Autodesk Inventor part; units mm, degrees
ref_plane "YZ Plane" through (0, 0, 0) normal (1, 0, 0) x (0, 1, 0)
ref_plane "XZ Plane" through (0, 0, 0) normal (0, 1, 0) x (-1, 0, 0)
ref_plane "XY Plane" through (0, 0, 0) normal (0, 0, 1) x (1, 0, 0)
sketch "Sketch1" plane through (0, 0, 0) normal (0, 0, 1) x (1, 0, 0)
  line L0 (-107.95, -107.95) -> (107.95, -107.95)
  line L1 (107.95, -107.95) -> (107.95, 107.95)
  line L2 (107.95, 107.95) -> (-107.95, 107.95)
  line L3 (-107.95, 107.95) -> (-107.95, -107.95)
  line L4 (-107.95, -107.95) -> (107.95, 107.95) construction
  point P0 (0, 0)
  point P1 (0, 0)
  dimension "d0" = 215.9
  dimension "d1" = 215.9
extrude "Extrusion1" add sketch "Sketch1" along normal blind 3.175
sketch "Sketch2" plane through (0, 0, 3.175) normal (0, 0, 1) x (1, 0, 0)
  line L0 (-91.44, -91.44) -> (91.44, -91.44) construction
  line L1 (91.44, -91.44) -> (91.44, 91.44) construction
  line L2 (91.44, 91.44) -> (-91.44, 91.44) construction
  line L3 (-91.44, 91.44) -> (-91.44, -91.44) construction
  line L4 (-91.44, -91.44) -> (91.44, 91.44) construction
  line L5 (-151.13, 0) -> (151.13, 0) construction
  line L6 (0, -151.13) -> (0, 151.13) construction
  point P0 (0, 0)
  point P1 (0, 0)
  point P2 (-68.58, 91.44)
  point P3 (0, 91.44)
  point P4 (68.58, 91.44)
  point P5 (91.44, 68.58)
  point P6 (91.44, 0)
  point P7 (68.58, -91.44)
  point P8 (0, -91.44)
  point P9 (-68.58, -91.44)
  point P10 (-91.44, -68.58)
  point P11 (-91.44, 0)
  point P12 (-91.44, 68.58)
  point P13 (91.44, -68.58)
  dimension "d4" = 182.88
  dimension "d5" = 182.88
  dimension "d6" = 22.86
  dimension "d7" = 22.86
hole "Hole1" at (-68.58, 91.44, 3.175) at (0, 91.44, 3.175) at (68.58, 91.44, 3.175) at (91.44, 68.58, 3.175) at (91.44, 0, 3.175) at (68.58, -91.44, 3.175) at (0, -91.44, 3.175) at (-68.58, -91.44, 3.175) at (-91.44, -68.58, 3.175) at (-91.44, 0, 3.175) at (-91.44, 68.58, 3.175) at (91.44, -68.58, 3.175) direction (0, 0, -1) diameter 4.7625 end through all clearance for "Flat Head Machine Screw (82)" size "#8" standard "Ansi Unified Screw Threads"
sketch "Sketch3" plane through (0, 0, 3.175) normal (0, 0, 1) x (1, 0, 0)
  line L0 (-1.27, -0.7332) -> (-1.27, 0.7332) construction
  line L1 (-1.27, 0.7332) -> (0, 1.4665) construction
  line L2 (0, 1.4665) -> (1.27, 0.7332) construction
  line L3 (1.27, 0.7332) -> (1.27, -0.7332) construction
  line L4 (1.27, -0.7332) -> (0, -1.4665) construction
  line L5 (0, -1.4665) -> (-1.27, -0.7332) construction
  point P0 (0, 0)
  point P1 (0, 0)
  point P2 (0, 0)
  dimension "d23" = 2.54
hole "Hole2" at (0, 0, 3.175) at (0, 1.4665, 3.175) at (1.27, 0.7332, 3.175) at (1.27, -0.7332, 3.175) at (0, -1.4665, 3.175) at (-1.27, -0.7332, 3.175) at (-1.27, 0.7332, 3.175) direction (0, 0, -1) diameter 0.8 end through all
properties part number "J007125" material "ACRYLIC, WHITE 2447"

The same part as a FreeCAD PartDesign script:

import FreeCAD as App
import Part
import Sketcher
Q = App.Units.Quantity


def add_polygon(sketch, points):
    """Adds a closed chain of lines whose ends are joined by coincident constraints."""
    first, n = sketch.GeometryCount, len(points)
    for a, b in zip(points, points[1:] + points[:1]):
        sketch.addGeometry(Part.LineSegment(App.Vector(*a, 0), App.Vector(*b, 0)), False)
    for i in range(n):
        sketch.addConstraint(Sketcher.Constraint("Coincident", first + i, 2, first + (i + 1) % n, 1))

doc = App.newDocument("Part")
body = doc.addObject("PartDesign::Body", "Body")

sketch1 = body.newObject("Sketcher::SketchObject", "Sketch")
sketch1.AttachmentSupport = (doc.getObject("XY_Plane"), [""])
sketch1.MapMode = "FlatFace"
add_polygon(sketch1, [(-108, 108), (-108, -108), (108, -108), (108, 108)])
sketch1.addConstraint([
    Sketcher.Constraint("Vertical", 0),
    Sketcher.Constraint("Horizontal", 1),
    Sketcher.Constraint("Vertical", 2),
    Sketcher.Constraint("Horizontal", 3),
    Sketcher.Constraint("Symmetric", 0, 2, 2, 2, -1, 1),
    Sketcher.Constraint("Equal", 3, 0),
    Sketcher.Constraint("DistanceX", 1, 1, 1, 2, Q("8.5 in")),
])
pad1 = body.newObject("PartDesign::Pad", "Pad")
pad1.Profile = sketch1
pad1.Length = Q("0.125 in")

sketch2 = body.newObject("Sketcher::SketchObject", "Sketch001")
sketch2.AttachmentSupport = (doc.getObject("XY_Plane"), [""])
sketch2.MapMode = "FlatFace"
sketch2.AttachmentOffset = App.Placement(App.Vector(0, 0, 0.125 * 25.4), App.Rotation())
sketch2.addGeometry([
    Part.Circle(App.Vector(-68.6, 91.4, 0), App.Vector(0, 0, 1), 2.4),
    Part.Circle(App.Vector(0, 91.4, 0), App.Vector(0, 0, 1), 2.4),
    Part.Circle(App.Vector(68.6, 91.4, 0), App.Vector(0, 0, 1), 2.4),
    Part.Circle(App.Vector(91.4, 68.6, 0), App.Vector(0, 0, 1), 2.4),
    Part.Circle(App.Vector(91.4, 0, 0), App.Vector(0, 0, 1), 2.4),
    Part.Circle(App.Vector(68.6, -91.4, 0), App.Vector(0, 0, 1), 2.4),
    Part.Circle(App.Vector(0, -91.4, 0), App.Vector(0, 0, 1), 2.4),
    Part.Circle(App.Vector(-68.6, -91.4, 0), App.Vector(0, 0, 1), 2.4),
    Part.Circle(App.Vector(-91.4, -68.6, 0), App.Vector(0, 0, 1), 2.4),
    Part.Circle(App.Vector(-91.4, 0, 0), App.Vector(0, 0, 1), 2.4),
    Part.Circle(App.Vector(-91.4, 68.6, 0), App.Vector(0, 0, 1), 2.4),
    Part.Circle(App.Vector(91.4, -68.6, 0), App.Vector(0, 0, 1), 2.4),
], False)
sketch2.addConstraint([
    Sketcher.Constraint("Equal", 0, 1),
    Sketcher.Constraint("Equal", 1, 2),
    Sketcher.Constraint("Equal", 2, 3),
    Sketcher.Constraint("Equal", 3, 4),
    Sketcher.Constraint("Equal", 4, 5),
    Sketcher.Constraint("Equal", 5, 6),
    Sketcher.Constraint("Equal", 6, 7),
    Sketcher.Constraint("Equal", 7, 8),
    Sketcher.Constraint("Equal", 8, 9),
    Sketcher.Constraint("Equal", 9, 10),
    Sketcher.Constraint("Equal", 10, 11),
    Sketcher.Constraint("Symmetric", 0, 3, 5, 3, -1, 1),
    Sketcher.Constraint("Symmetric", 1, 3, 6, 3, -1, 1),
    Sketcher.Constraint("Symmetric", 2, 3, 7, 3, -1, 1),
    Sketcher.Constraint("Symmetric", 3, 3, 8, 3, -1, 1),
    Sketcher.Constraint("Symmetric", 4, 3, 9, 3, -1, 1),
    Sketcher.Constraint("Symmetric", 10, 3, 11, 3, -1, 1),
    Sketcher.Constraint("Symmetric", 0, 3, 2, 3, -2),
    Sketcher.Constraint("Symmetric", 3, 3, 10, 3, -2),
    Sketcher.Constraint("PointOnObject", 1, 3, -2),
    Sketcher.Constraint("PointOnObject", 4, 3, -1),
    Sketcher.Constraint("Horizontal", 0, 3, 1, 3),
    Sketcher.Constraint("Vertical", 3, 3, 4, 3),
    Sketcher.Constraint("Diameter", 0, Q("0.1875 in")),
    Sketcher.Constraint("DistanceX", 0, 3, -1, 1, Q("2.7 in")),
    Sketcher.Constraint("DistanceY", -1, 1, 0, 3, Q("3.6 in")),
    Sketcher.Constraint("DistanceX", -1, 1, 3, 3, Q("3.6 in")),
    Sketcher.Constraint("DistanceY", -1, 1, 3, 3, Q("2.7 in")),
])
doc.recompute()
hole = body.newObject("PartDesign::Hole", "Hole")
hole.Profile = sketch2
hole.ThreadType = "None"
hole.Diameter = Q("0.1875 in")
hole.DepthType = "ThroughAll"

sketch3 = body.newObject("Sketcher::SketchObject", "Sketch002")
sketch3.AttachmentSupport = (doc.getObject("XY_Plane"), [""])
sketch3.MapMode = "FlatFace"
sketch3.AttachmentOffset = App.Placement(App.Vector(0, 0, 0.125 * 25.4), App.Rotation())
sketch3.addGeometry([
    Part.Circle(App.Vector(0, 0, 0), App.Vector(0, 0, 1), 0.4),
    Part.Circle(App.Vector(0, 1.47, 0), App.Vector(0, 0, 1), 0.4),
    Part.Circle(App.Vector(1.27, 0.73, 0), App.Vector(0, 0, 1), 0.4),
    Part.Circle(App.Vector(1.27, -0.73, 0), App.Vector(0, 0, 1), 0.4),
    Part.Circle(App.Vector(0, -1.47, 0), App.Vector(0, 0, 1), 0.4),
    Part.Circle(App.Vector(-1.27, -0.73, 0), App.Vector(0, 0, 1), 0.4),
    Part.Circle(App.Vector(-1.27, 0.73, 0), App.Vector(0, 0, 1), 0.4),
], False)
sketch3.addConstraint([
    Sketcher.Constraint("Coincident", 0, 3, -1, 1),
    Sketcher.Constraint("Equal", 0, 1),
    Sketcher.Constraint("Equal", 1, 2),
    Sketcher.Constraint("Equal", 2, 3),
    Sketcher.Constraint("Equal", 3, 4),
    Sketcher.Constraint("Equal", 4, 5),
    Sketcher.Constraint("Equal", 5, 6),
    Sketcher.Constraint("Symmetric", 1, 3, 4, 3, -1, 1),
    Sketcher.Constraint("Symmetric", 2, 3, 5, 3, -1, 1),
    Sketcher.Constraint("Symmetric", 3, 3, 6, 3, -1, 1),
    Sketcher.Constraint("Symmetric", 3, 3, 5, 3, -2),
    Sketcher.Constraint("PointOnObject", 1, 3, -2),
    Sketcher.Constraint("Diameter", 0, Q("0.0315 in")),
    Sketcher.Constraint("DistanceX", 5, 3, 3, 3, Q("0.1 in")),
    Sketcher.Constraint("DistanceY", 3, 3, 1, 3, Q("0.0866 in")),
    Sketcher.Constraint("DistanceY", -1, 1, 1, 3, 1.4665),
])
doc.recompute()
hole2 = body.newObject("PartDesign::Hole", "Hole001")
hole2.Profile = sketch3
hole2.ThreadType = "None"
hole2.Diameter = Q("0.0314961 in")
hole2.DepthType = "ThroughAll"

doc.recompute()
